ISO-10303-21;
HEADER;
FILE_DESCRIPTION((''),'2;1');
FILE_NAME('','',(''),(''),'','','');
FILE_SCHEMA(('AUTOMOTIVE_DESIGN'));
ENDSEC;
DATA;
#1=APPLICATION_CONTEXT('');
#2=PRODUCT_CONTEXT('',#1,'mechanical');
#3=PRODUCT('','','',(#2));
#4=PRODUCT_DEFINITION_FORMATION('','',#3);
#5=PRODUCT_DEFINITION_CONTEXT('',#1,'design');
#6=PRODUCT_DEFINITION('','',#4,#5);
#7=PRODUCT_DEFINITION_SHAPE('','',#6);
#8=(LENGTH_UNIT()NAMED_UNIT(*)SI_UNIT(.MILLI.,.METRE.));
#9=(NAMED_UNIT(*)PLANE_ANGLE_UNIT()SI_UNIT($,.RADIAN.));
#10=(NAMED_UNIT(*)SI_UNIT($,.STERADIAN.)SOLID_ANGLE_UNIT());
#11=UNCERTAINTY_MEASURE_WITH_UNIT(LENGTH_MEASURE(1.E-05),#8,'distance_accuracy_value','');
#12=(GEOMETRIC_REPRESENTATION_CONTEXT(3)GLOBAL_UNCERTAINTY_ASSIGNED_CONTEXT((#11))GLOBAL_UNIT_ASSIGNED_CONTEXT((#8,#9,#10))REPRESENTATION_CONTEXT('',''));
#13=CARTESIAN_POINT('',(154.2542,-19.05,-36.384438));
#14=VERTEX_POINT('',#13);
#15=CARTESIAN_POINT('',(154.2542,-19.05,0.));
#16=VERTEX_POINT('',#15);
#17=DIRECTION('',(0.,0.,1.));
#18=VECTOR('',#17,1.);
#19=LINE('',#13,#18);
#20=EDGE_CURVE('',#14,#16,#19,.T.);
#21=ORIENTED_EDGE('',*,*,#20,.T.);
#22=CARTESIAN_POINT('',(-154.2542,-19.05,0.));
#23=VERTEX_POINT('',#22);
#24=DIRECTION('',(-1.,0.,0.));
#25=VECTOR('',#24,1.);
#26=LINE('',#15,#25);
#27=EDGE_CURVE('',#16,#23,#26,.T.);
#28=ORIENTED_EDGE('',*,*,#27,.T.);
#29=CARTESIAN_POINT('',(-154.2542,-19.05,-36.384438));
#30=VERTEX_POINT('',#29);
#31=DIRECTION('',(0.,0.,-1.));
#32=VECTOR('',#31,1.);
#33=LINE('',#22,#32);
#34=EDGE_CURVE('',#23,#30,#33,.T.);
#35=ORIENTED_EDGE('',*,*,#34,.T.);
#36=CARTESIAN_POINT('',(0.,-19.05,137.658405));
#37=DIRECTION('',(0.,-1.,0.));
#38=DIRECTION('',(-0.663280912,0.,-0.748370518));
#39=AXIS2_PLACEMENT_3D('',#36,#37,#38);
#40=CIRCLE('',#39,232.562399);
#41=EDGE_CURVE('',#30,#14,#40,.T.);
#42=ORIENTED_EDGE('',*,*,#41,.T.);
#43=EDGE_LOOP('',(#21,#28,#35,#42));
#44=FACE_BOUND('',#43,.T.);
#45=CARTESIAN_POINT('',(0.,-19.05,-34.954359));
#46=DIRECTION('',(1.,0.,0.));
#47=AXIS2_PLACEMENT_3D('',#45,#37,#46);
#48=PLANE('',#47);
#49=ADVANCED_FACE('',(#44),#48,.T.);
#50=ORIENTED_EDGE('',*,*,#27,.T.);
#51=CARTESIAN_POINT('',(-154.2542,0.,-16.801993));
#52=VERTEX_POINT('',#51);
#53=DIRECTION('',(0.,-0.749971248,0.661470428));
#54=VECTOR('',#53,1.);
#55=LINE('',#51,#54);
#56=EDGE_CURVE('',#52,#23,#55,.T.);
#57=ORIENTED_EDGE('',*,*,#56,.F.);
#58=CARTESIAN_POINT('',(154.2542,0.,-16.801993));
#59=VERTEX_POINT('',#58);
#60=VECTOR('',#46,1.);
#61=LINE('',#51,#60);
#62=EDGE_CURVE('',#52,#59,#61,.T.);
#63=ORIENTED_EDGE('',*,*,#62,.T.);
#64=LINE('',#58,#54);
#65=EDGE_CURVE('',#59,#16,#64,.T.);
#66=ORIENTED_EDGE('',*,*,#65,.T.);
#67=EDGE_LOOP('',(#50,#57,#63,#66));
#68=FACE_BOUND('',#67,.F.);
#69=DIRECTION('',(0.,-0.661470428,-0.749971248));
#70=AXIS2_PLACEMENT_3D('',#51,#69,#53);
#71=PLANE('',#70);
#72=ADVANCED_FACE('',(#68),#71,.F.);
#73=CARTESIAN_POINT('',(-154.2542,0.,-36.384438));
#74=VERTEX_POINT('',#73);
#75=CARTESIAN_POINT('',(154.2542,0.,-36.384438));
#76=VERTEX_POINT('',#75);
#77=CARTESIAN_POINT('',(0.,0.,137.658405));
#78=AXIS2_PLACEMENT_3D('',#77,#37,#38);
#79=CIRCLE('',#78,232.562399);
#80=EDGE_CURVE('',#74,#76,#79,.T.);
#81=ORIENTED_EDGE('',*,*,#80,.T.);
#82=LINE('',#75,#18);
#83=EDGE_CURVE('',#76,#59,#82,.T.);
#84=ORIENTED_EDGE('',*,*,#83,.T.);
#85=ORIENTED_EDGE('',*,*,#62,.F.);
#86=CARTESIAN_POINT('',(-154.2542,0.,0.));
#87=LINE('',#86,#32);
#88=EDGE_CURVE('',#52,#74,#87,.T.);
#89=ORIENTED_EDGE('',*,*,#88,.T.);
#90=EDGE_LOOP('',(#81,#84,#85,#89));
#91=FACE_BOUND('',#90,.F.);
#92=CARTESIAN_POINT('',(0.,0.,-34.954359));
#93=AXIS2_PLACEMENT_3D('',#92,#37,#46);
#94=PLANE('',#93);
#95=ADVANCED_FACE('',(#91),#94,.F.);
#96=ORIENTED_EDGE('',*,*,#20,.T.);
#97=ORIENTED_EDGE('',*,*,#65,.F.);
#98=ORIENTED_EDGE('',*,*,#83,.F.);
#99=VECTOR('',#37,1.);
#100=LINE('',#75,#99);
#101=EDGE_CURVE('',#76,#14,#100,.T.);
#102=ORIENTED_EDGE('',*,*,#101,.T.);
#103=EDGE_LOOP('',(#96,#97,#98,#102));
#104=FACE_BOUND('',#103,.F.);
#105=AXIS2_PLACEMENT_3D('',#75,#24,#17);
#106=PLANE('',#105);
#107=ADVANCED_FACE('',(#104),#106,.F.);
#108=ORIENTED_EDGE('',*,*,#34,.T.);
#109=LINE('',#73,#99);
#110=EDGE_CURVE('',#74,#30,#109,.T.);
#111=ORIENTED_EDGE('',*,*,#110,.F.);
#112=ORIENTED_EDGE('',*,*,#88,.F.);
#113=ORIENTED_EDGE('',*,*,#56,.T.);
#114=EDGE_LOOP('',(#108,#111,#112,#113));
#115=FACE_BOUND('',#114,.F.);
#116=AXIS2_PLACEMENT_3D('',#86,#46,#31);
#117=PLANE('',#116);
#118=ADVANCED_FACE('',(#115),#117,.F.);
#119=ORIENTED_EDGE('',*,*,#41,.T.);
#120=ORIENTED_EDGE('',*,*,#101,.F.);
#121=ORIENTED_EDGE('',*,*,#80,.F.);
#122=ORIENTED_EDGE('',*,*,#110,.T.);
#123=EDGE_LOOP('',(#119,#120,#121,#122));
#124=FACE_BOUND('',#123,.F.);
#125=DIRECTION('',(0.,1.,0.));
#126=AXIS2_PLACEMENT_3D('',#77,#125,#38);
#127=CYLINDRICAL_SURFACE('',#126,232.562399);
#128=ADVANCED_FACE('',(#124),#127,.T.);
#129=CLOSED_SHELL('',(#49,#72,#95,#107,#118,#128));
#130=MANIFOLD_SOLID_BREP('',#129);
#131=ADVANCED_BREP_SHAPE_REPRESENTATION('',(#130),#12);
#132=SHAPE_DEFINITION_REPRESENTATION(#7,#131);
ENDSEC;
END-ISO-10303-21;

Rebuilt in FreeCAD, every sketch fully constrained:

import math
import FreeCAD as App
import Part
import Sketcher
Q = App.Units.Quantity

doc = App.newDocument("Part")
body = doc.addObject("PartDesign::Body", "Body")

sketch1 = body.newObject("Sketcher::SketchObject", "Sketch")
sketch1.AttachmentSupport = (doc.getObject("XZ_Plane"), [""])
sketch1.MapMode = "FlatFace"
sketch1.addGeometry([
    Part.LineSegment(App.Vector(154.2542, 0, 0), App.Vector(-154.2542, 0, 0)),
    Part.LineSegment(App.Vector(-154.2542, 0, 0), App.Vector(-154.2542, -36.384438, 0)),
    Part.ArcOfCircle(Part.Circle(App.Vector(0, 137.658405, 0), App.Vector(0, 0, 1), 232.562399), math.radians(-131.550576), math.radians(-48.449424)),
    Part.LineSegment(App.Vector(154.2542, -36.384438, 0), App.Vector(154.2542, 0, 0)),
], False)
sketch1.addConstraint([
    Sketcher.Constraint("Coincident", 0, 2, 1, 1),
    Sketcher.Constraint("Coincident", 1, 2, 2, 1),
    Sketcher.Constraint("Coincident", 2, 2, 3, 1),
    Sketcher.Constraint("Coincident", 3, 2, 0, 1),
    Sketcher.Constraint("Horizontal", 0),
    Sketcher.Constraint("Vertical", 1),
    Sketcher.Constraint("Vertical", 3),
    Sketcher.Constraint("Symmetric", 0, 2, 3, 2, -1, 1),
    Sketcher.Constraint("PointOnObject", 2, 3, -2),
    Sketcher.Constraint("Radius", 2, Q("9.156 in")),
    Sketcher.Constraint("DistanceX", 0, 2, 0, 1, Q("12.146 in")),
    Sketcher.Constraint("DistanceY", 1, 2, 1, 1, 36.384438),
])
pad1 = body.newObject("PartDesign::Pad", "Pad")
pad1.Profile = sketch1
pad1.Length = Q("0.75 in")

sketch2 = body.newObject("Sketcher::SketchObject", "Sketch001")
sketch2.AttachmentSupport = (doc.getObject("YZ_Plane"), [""])
sketch2.MapMode = "FlatFace"
sketch2.AttachmentOffset = App.Placement(App.Vector(0, 0, -6.073 * 25.4), App.Rotation())
sketch2.addGeometry([
    Part.LineSegment(App.Vector(-19.05, 0, 0), App.Vector(0, 0, 0)),
    Part.LineSegment(App.Vector(0, 0, 0), App.Vector(0, -16.801993, 0)),
    Part.LineSegment(App.Vector(0, -16.801993, 0), App.Vector(-19.05, 0, 0)),
], False)
sketch2.addConstraint([
    Sketcher.Constraint("Coincident", 0, 2, 1, 1),
    Sketcher.Constraint("Coincident", 1, 2, 2, 1),
    Sketcher.Constraint("Coincident", 2, 2, 0, 1),
    Sketcher.Constraint("Horizontal", 0),
    Sketcher.Constraint("Vertical", 1),
    Sketcher.Constraint("Coincident", 0, 2, -1, 1),
    Sketcher.Constraint("DistanceX", 0, 1, 0, 2, Q("0.75 in")),
    Sketcher.Constraint("DistanceY", 1, 2, 1, 1, 16.801993),
])
pocket1 = body.newObject("PartDesign::Pocket", "Pocket")
pocket1.Profile = sketch2
pocket1.Type = "ThroughAll"
pocket1.Reversed = True

doc.recompute()
